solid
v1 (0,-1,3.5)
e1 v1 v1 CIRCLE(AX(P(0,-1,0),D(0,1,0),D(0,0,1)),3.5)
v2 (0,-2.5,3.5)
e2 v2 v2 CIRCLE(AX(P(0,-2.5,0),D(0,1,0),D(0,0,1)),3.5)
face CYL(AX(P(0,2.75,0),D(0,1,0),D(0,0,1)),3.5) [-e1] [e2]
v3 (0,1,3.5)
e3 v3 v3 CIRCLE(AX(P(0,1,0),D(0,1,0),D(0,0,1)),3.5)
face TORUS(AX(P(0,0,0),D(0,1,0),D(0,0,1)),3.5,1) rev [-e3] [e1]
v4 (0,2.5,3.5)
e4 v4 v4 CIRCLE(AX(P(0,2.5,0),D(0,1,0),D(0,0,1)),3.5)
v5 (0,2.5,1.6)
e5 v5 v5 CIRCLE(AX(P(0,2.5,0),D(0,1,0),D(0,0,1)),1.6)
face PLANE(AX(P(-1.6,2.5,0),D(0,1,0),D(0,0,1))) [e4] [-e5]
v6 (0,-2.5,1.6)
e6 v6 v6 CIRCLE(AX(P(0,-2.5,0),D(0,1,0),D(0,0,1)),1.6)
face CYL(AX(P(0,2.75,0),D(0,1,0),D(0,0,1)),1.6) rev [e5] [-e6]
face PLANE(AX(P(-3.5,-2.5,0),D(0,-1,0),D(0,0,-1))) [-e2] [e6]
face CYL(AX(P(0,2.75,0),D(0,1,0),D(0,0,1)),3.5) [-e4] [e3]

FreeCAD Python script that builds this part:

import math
import FreeCAD as App
import Part
import Sketcher

doc = App.newDocument("Part")
body = doc.addObject("PartDesign::Body", "Body")

# Sketch on XY plane
sketch1 = body.newObject("Sketcher::SketchObject", "Sketch")
sketch1.AttachmentSupport = (doc.getObject("XY_Plane"), [""])
sketch1.MapMode = "FlatFace"
sketch1.addGeometry([
    Part.LineSegment(App.Vector(-1.6, 2.5, 0), App.Vector(-3.5, 2.5, 0)),  # 0
    Part.LineSegment(App.Vector(-3.5, 2.5, 0), App.Vector(-3.5, 1, 0)),  # 1
    Part.ArcOfCircle(Part.Circle(App.Vector(-3.5, 0, 0), App.Vector(0, 0, 1), 1), math.radians(-90), math.radians(90)),  # 2
    Part.LineSegment(App.Vector(-3.5, -1, 0), App.Vector(-3.5, -2.5, 0)),  # 3
    Part.LineSegment(App.Vector(-3.5, -2.5, 0), App.Vector(-1.6, -2.5, 0)),  # 4
    Part.LineSegment(App.Vector(-1.6, -2.5, 0), App.Vector(-1.6, 2.5, 0)),  # 5
], False)
sketch1.addConstraint([
    Sketcher.Constraint("Coincident", 0, 2, 1, 1),
    Sketcher.Constraint("Coincident", 1, 2, 2, 2),
    Sketcher.Constraint("Coincident", 2, 1, 3, 1),
    Sketcher.Constraint("Coincident", 3, 2, 4, 1),
    Sketcher.Constraint("Coincident", 4, 2, 5, 1),
    Sketcher.Constraint("Coincident", 5, 2, 0, 1),
    Sketcher.Constraint("Horizontal", 0),
    Sketcher.Constraint("Vertical", 1),
    Sketcher.Constraint("Vertical", 3),
    Sketcher.Constraint("Horizontal", 4),
    Sketcher.Constraint("Vertical", 5),
    Sketcher.Constraint("Symmetric", 1, 2, 2, 1, -1),
    Sketcher.Constraint("Vertical", 2, 3, 0, 2),
    Sketcher.Constraint("Equal", 1, 3),
    Sketcher.Constraint("Radius", 2, 1.0),
    Sketcher.Constraint("DistanceY", 5, 1, 5, 2, 5.0),
    Sketcher.Constraint("DistanceX", 0, 2, 0, 1, 1.9),
    Sketcher.Constraint("DistanceX", 2, 3, -1, 1, 3.5),
])
revolution = body.newObject("PartDesign::Revolution", "Revolution")
revolution.Profile = sketch1
revolution.ReferenceAxis = (sketch1, ["V_Axis"])
revolution.Angle = 360

doc.recompute()
